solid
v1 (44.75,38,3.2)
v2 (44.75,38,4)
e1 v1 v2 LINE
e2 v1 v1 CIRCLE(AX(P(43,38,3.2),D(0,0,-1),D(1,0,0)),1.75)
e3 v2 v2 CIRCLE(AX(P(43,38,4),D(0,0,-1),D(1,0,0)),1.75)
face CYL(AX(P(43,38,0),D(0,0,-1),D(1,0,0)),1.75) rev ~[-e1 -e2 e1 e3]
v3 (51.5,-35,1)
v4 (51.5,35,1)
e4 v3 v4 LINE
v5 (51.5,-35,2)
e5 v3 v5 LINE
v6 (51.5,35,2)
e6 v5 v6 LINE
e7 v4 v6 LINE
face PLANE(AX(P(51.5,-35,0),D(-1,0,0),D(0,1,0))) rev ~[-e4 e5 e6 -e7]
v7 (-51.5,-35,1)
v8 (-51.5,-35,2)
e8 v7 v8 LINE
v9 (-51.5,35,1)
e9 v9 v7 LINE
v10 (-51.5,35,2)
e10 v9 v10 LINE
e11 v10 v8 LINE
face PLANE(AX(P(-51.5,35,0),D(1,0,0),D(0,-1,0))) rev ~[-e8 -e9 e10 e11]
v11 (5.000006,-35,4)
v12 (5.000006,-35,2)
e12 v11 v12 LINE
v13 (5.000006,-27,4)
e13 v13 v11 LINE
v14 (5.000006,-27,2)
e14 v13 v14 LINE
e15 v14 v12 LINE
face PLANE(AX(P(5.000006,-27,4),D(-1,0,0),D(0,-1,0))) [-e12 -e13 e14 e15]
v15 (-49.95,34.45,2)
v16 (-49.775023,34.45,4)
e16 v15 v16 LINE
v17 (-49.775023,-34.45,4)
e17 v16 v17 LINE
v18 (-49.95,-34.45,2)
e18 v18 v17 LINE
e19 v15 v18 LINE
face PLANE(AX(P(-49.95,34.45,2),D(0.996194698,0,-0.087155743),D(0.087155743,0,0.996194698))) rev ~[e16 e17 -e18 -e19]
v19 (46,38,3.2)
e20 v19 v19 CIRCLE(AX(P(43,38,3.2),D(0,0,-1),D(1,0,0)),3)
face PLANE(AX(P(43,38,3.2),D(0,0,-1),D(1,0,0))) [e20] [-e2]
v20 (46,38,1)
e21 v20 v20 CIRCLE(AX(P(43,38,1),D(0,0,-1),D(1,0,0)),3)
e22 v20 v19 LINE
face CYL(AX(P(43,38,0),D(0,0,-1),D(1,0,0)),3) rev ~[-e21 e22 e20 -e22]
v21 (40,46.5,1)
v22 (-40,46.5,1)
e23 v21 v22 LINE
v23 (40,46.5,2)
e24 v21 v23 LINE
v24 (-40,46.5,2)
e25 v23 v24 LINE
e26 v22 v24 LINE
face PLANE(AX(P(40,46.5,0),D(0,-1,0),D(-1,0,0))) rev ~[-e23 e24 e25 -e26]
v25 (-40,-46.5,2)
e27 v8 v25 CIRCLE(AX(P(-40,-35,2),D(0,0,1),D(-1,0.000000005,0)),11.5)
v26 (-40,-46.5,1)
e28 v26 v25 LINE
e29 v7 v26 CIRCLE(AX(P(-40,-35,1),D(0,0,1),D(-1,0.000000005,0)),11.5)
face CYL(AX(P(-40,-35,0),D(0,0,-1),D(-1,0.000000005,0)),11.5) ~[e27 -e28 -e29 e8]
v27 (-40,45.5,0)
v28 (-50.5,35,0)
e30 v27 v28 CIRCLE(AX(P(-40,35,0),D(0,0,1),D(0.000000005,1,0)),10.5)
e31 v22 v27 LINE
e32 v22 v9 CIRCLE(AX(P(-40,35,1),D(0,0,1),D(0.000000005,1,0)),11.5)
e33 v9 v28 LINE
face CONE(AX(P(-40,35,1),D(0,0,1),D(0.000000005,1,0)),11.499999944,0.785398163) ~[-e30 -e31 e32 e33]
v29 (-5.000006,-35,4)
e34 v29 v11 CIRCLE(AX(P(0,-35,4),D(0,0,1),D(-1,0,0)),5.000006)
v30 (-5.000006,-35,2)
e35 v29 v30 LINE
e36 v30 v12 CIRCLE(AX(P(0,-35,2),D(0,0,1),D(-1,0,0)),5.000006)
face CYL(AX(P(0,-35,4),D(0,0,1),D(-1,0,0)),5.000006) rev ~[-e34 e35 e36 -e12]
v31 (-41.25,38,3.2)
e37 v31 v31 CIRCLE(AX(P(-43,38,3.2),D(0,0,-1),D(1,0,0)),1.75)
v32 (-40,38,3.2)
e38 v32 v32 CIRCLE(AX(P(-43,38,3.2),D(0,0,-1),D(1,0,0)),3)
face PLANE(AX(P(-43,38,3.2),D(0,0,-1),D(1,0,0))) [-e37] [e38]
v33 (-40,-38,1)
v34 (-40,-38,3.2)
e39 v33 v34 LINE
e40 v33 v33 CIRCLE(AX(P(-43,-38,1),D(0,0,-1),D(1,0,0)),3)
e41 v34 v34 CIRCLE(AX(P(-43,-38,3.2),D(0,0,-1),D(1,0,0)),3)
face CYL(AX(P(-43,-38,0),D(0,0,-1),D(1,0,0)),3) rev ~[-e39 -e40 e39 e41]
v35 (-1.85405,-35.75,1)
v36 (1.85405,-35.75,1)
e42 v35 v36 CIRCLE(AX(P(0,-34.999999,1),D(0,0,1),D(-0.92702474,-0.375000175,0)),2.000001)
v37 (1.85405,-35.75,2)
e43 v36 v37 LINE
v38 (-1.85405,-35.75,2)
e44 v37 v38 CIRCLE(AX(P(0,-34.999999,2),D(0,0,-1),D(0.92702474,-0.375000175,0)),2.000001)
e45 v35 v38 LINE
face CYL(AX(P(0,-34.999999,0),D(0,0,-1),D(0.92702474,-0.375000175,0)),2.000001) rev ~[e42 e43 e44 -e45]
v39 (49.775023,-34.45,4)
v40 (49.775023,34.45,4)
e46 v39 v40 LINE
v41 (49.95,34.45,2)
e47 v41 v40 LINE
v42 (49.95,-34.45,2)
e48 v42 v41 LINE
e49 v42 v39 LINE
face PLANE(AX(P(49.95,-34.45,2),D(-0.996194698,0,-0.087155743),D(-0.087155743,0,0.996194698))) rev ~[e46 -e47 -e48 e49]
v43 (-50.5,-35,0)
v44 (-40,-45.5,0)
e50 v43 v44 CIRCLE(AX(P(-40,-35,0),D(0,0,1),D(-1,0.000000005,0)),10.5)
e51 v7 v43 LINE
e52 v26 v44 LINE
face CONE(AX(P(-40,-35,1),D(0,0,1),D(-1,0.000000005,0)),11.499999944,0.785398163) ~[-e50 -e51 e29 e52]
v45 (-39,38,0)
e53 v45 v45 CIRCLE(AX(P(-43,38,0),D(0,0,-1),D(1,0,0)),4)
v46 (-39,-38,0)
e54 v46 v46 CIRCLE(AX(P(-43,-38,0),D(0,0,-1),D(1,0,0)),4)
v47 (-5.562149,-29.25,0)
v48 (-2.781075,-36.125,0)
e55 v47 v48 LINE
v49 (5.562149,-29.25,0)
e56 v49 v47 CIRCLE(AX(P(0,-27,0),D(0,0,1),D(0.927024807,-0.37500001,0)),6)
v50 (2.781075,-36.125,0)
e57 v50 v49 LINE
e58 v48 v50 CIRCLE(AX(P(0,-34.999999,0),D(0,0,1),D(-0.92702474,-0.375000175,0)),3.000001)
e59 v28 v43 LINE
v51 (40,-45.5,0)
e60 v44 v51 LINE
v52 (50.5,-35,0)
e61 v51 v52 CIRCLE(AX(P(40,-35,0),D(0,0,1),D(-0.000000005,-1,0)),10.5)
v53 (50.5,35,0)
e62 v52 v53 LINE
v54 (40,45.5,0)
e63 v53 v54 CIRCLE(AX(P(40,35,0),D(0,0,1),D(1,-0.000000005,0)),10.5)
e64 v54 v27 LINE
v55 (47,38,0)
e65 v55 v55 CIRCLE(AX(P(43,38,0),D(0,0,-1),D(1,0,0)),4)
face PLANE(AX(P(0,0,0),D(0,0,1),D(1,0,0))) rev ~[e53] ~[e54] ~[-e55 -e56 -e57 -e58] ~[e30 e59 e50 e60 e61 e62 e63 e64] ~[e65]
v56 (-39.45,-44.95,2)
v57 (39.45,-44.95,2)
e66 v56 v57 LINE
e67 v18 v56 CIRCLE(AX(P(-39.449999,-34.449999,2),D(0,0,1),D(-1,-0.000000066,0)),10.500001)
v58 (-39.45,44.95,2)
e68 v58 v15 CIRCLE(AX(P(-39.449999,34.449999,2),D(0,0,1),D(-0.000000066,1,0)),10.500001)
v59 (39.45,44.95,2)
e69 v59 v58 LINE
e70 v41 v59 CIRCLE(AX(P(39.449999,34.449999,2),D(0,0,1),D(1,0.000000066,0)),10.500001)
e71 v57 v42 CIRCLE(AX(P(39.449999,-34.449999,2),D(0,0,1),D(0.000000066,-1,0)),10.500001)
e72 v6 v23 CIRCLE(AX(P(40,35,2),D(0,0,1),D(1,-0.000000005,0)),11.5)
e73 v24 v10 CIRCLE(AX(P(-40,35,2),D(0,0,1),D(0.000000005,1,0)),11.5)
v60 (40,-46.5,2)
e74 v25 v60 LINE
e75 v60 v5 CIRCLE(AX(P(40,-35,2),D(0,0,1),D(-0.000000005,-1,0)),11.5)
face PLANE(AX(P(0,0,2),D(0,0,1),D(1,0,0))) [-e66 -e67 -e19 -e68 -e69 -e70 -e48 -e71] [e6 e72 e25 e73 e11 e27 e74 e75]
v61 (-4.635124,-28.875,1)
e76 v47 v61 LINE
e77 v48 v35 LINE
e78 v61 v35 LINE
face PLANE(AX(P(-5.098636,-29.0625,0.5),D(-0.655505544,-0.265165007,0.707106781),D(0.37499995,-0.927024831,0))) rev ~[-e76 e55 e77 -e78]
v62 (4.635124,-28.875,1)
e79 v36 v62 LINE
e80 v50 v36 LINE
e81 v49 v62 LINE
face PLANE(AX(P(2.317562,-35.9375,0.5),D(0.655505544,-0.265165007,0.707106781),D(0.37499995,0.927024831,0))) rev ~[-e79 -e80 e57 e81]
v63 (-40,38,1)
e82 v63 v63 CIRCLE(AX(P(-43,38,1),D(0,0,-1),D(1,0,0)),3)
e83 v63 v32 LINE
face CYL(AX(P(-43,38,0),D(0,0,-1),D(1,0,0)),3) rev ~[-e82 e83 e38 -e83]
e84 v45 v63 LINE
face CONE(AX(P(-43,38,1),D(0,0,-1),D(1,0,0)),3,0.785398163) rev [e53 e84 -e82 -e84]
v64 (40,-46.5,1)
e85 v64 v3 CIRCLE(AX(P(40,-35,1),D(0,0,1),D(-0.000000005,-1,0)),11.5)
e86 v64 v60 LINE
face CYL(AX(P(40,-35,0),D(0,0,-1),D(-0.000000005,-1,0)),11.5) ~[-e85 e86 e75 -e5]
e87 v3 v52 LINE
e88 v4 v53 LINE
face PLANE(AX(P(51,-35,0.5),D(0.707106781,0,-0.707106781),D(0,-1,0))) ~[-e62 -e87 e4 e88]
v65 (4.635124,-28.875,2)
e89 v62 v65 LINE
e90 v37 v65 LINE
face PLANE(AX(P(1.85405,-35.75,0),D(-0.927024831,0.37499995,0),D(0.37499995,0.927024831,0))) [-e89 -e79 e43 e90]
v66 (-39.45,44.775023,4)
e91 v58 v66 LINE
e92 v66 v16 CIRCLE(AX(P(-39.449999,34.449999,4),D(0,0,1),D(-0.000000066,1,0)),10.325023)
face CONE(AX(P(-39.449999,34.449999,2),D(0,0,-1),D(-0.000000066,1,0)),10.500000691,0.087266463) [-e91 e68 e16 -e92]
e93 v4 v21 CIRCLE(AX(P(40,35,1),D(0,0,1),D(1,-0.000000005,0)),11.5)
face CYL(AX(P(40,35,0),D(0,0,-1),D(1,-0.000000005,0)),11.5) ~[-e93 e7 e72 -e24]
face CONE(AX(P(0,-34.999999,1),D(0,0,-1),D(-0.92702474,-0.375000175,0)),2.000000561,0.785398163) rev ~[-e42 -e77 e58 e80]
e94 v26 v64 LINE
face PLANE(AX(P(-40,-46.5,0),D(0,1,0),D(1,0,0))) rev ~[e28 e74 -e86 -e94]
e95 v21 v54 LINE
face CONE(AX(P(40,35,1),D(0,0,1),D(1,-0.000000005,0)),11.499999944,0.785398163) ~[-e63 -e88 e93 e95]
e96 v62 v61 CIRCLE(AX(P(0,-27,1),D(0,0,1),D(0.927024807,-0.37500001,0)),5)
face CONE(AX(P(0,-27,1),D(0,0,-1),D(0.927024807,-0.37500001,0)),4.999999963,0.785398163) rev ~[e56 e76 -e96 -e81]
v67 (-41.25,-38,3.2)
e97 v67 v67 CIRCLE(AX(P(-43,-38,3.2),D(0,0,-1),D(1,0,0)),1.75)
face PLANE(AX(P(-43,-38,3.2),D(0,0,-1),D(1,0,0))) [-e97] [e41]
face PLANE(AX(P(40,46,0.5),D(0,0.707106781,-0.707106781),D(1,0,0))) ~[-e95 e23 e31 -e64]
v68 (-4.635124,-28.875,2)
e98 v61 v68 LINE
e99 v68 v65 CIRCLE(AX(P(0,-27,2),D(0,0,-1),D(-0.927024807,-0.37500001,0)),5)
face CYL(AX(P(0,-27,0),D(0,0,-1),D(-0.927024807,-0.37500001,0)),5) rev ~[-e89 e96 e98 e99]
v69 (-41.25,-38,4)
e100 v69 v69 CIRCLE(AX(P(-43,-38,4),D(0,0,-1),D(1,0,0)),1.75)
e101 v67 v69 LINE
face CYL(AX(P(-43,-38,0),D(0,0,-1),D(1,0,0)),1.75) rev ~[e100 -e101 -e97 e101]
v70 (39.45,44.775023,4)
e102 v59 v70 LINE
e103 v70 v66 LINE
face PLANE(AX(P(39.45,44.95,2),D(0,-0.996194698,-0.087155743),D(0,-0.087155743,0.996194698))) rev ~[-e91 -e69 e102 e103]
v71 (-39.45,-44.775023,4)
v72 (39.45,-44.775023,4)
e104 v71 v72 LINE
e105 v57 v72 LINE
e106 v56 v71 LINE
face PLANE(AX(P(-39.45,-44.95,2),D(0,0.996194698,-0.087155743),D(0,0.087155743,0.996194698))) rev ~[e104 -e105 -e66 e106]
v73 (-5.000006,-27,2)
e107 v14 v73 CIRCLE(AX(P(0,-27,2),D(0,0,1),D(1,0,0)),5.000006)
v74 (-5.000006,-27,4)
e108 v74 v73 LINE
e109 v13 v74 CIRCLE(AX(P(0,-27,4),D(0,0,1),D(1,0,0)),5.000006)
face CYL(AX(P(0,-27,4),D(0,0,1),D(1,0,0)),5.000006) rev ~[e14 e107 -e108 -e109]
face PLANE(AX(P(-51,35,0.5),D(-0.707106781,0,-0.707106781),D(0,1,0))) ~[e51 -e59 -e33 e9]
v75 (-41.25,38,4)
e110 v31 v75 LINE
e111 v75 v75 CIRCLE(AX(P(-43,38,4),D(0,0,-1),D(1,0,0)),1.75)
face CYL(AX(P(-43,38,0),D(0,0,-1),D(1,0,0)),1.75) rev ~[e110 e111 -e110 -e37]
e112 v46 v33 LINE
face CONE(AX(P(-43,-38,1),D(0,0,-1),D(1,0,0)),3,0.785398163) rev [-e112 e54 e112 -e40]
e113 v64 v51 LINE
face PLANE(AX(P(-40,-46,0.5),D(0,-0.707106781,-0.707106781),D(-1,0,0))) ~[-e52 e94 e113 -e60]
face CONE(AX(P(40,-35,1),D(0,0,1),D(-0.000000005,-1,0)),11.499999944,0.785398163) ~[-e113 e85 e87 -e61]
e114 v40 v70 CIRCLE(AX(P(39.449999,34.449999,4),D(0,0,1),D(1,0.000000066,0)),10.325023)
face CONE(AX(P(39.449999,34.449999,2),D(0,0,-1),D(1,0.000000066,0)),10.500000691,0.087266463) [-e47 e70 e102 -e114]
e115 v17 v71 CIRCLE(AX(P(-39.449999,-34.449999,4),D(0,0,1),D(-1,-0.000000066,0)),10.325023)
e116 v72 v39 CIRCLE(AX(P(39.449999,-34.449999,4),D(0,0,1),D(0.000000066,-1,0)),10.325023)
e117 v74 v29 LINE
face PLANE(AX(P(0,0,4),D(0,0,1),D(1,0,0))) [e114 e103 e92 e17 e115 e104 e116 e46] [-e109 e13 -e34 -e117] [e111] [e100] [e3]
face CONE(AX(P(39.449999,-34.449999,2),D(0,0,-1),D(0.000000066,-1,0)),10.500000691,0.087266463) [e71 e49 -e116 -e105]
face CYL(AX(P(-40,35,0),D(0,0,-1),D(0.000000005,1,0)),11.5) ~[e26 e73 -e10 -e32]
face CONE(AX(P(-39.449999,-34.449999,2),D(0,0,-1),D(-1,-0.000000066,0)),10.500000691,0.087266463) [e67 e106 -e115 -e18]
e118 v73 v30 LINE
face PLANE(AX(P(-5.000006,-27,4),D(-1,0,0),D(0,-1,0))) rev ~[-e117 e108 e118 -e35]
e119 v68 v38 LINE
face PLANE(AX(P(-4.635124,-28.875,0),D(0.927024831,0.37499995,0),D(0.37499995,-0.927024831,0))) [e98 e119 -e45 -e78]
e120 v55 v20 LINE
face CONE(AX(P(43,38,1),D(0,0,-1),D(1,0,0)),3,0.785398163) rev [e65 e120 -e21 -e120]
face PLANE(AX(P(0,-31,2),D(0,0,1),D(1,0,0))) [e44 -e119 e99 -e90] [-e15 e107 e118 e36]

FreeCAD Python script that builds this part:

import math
import FreeCAD as App
import Part
import Sketcher

V = App.Vector
Q = App.Units.Quantity


def edges_at(feature, points):
    """Names of the edges that pass closest to the given points."""
    edges = feature.Shape.Edges
    near = lambda p: min(range(len(edges)), key=lambda i: edges[i].distToShape(Part.Vertex(*p))[0])
    return sorted({f"Edge{near(p) + 1}" for p in points})

doc = App.newDocument("Part")
body = doc.addObject("PartDesign::Body", "Body")

# Sketch on XY plane
sketch1 = body.newObject("Sketcher::SketchObject", "Sketch")
sketch1.AttachmentSupport = (doc.getObject("XY_Plane"), [""])
sketch1.MapMode = "FlatFace"
sketch1.addGeometry([
    Part.LineSegment(V(-40, -46, 0), V(40, -46, 0)),  # 0
    Part.ArcOfCircle(Part.Circle(V(40, -35, 0), V(0, 0, 1), 11), math.radians(-90), math.radians(0)),  # 1
    Part.LineSegment(V(52, -35, 0), V(52, 35, 0)),  # 2
    Part.ArcOfCircle(Part.Circle(V(40, 35, 0), V(0, 0, 1), 11), math.radians(0), math.radians(90)),  # 3
    Part.LineSegment(V(40, 46, 0), V(-40, 46, 0)),  # 4
    Part.ArcOfCircle(Part.Circle(V(-40, 35, 0), V(0, 0, 1), 11), math.radians(90), math.radians(180)),  # 5
    Part.LineSegment(V(-52, 35, 0), V(-52, -35, 0)),  # 6
    Part.ArcOfCircle(Part.Circle(V(-40, -35, 0), V(0, 0, 1), 11), math.radians(180), math.radians(270)),  # 7
], False)
sketch1.addConstraint([
    Sketcher.Constraint("Tangent", 0, 2, 1, 1),
    Sketcher.Constraint("Tangent", 1, 2, 2, 1),
    Sketcher.Constraint("Tangent", 2, 2, 3, 1),
    Sketcher.Constraint("Tangent", 3, 2, 4, 1),
    Sketcher.Constraint("Tangent", 4, 2, 5, 1),
    Sketcher.Constraint("Tangent", 5, 2, 6, 1),
    Sketcher.Constraint("Tangent", 6, 2, 7, 1),
    Sketcher.Constraint("Tangent", 7, 2, 0, 1),
    Sketcher.Constraint("Horizontal", 0),
    Sketcher.Constraint("Vertical", 2),
    Sketcher.Constraint("Horizontal", 4),
    Sketcher.Constraint("Vertical", 6),
    Sketcher.Constraint("Equal", 1, 3),
    Sketcher.Constraint("Equal", 3, 5),
    Sketcher.Constraint("Equal", 5, 7),
    Sketcher.Constraint("Symmetric", 1, 3, 5, 3, -1, 1),
    Sketcher.Constraint("Radius", 1, Q("11.5 mm")),
    Sketcher.Constraint("DistanceX", 0, 1, 0, 2, Q("80 mm")),
    Sketcher.Constraint("DistanceY", 2, 1, 2, 2, Q("70 mm")),
])
pad1 = body.newObject("PartDesign::Pad", "Pad")
pad1.Profile = sketch1
pad1.Length = 2

# Sketch on XY plane
sketch2 = body.newObject("Sketcher::SketchObject", "Sketch001")
sketch2.AttachmentSupport = (doc.getObject("XY_Plane"), [""])
sketch2.MapMode = "FlatFace"
sketch2.AttachmentOffset = App.Placement(V(0, 0, 2), App.Rotation())
sketch2.addGeometry([
    Part.LineSegment(V(50, -34, 0), V(50, 34, 0)),  # 0
    Part.ArcOfCircle(Part.Circle(V(39, 34, 0), V(0, 0, 1), 11), math.radians(0), math.radians(90)),  # 1
    Part.LineSegment(V(39, 45, 0), V(-39, 45, 0)),  # 2
    Part.ArcOfCircle(Part.Circle(V(-39, 34, 0), V(0, 0, 1), 11), math.radians(90), math.radians(180)),  # 3
    Part.LineSegment(V(-50, 34, 0), V(-50, -34, 0)),  # 4
    Part.ArcOfCircle(Part.Circle(V(-39, -34, 0), V(0, 0, 1), 11), math.radians(-180), math.radians(-90)),  # 5
    Part.LineSegment(V(-39, -45, 0), V(39, -45, 0)),  # 6
    Part.ArcOfCircle(Part.Circle(V(39, -34, 0), V(0, 0, 1), 11), math.radians(-90), math.radians(0)),  # 7
], False)
sketch2.addConstraint([
    Sketcher.Constraint("Tangent", 0, 2, 1, 1),
    Sketcher.Constraint("Tangent", 1, 2, 2, 1),
    Sketcher.Constraint("Tangent", 2, 2, 3, 1),
    Sketcher.Constraint("Tangent", 3, 2, 4, 1),
    Sketcher.Constraint("Tangent", 4, 2, 5, 1),
    Sketcher.Constraint("Tangent", 5, 2, 6, 1),
    Sketcher.Constraint("Tangent", 6, 2, 7, 1),
    Sketcher.Constraint("Tangent", 7, 2, 0, 1),
    Sketcher.Constraint("Vertical", 0),
    Sketcher.Constraint("Horizontal", 2),
    Sketcher.Constraint("Vertical", 4),
    Sketcher.Constraint("Horizontal", 6),
    Sketcher.Constraint("Equal", 1, 3),
    Sketcher.Constraint("Equal", 3, 5),
    Sketcher.Constraint("Equal", 5, 7),
    Sketcher.Constraint("Symmetric", 1, 3, 5, 3, -1, 1),
    Sketcher.Constraint("Radius", 1, Q("10.500001 mm")),
    Sketcher.Constraint("DistanceX", 2, 2, 2, 1, Q("78.9 mm")),
    Sketcher.Constraint("DistanceY", 0, 1, 0, 2, Q("68.9 mm")),
])
pad2 = body.newObject("PartDesign::Pad", "Pad001")
pad2.Profile = sketch2
pad2.Length = 2
pad2.TaperAngle = -5

# Sketch on XY plane
sketch3 = body.newObject("Sketcher::SketchObject", "Sketch002")
sketch3.AttachmentSupport = (doc.getObject("XY_Plane"), [""])
sketch3.MapMode = "FlatFace"
sketch3.addGeometry([
    Part.Circle(V(-43, -38, 0), V(0, 0, 1), 3),
    Part.Circle(V(-43, 38, 0), V(0, 0, 1), 3),
    Part.Circle(V(43, 38, 0), V(0, 0, 1), 3),
], False)
sketch3.addConstraint([
    Sketcher.Constraint("Equal", 0, 1),
    Sketcher.Constraint("Equal", 1, 2),
    Sketcher.Constraint("Symmetric", 0, 3, 2, 3, -1, 1),
    Sketcher.Constraint("Symmetric", 1, 3, 2, 3, -2),
    Sketcher.Constraint("Diameter", 0, Q("6 mm")),
    Sketcher.Constraint("DistanceX", 0, 3, -1, 1, Q("43 mm")),
    Sketcher.Constraint("DistanceY", 0, 3, -1, 1, Q("38 mm")),
])
pocket1 = body.newObject("PartDesign::Pocket", "Pocket")
pocket1.Profile = sketch3
pocket1.Length = 3.2
pocket1.Reversed = True

# Sketch on XY plane
sketch4 = body.newObject("Sketcher::SketchObject", "Sketch003")
sketch4.AttachmentSupport = (doc.getObject("XY_Plane"), [""])
sketch4.MapMode = "FlatFace"
sketch4.addGeometry([
    Part.Circle(V(-43, -38, 0), V(0, 0, 1), 1.8),
    Part.Circle(V(-43, 38, 0), V(0, 0, 1), 1.8),
    Part.Circle(V(43, 38, 0), V(0, 0, 1), 1.8),
], False)
sketch4.addConstraint([
    Sketcher.Constraint("Equal", 0, 1),
    Sketcher.Constraint("Equal", 1, 2),
    Sketcher.Constraint("Symmetric", 0, 3, 2, 3, -1, 1),
    Sketcher.Constraint("Symmetric", 1, 3, 2, 3, -2),
    Sketcher.Constraint("Diameter", 0, Q("3.5 mm")),
    Sketcher.Constraint("DistanceX", 0, 3, -1, 1, Q("43 mm")),
    Sketcher.Constraint("DistanceY", 0, 3, -1, 1, Q("38 mm")),
])
pocket2 = body.newObject("PartDesign::Pocket", "Pocket001")
pocket2.Profile = sketch4
pocket2.Type = "ThroughAll"
pocket2.Reversed = True

# Sketch on XY plane
sketch5 = body.newObject("Sketcher::SketchObject", "Sketch004")
sketch5.AttachmentSupport = (doc.getObject("XY_Plane"), [""])
sketch5.MapMode = "FlatFace"
sketch5.addGeometry([
    Part.ArcOfCircle(Part.Circle(V(0, -27, 0), V(0, 0, 1), 5), math.radians(-22), math.radians(202)),
    Part.LineSegment(V(4.6, -28.9, 0), V(1.9, -35.8, 0)),
    Part.ArcOfCircle(Part.Circle(V(0, -35, 0), V(0, 0, 1), 2), math.radians(-158), math.radians(-22)),
    Part.LineSegment(V(-1.9, -35.8, 0), V(-4.6, -28.9, 0)),
], False)
sketch5.addConstraint([
    Sketcher.Constraint("Tangent", 0, 1, 1, 1),
    Sketcher.Constraint("Tangent", 1, 2, 2, 2),
    Sketcher.Constraint("Tangent", 2, 1, 3, 1),
    Sketcher.Constraint("Tangent", 3, 2, 0, 2),
    Sketcher.Constraint("Symmetric", 1, 2, 2, 1, -2),
    Sketcher.Constraint("Radius", 0, Q("5 mm")),
    Sketcher.Constraint("Radius", 2, Q("2.000001 mm")),
    Sketcher.Constraint("DistanceY", 0, 3, -1, 1, Q("27 mm")),
    Sketcher.Constraint("DistanceY", 2, 3, -1, 1, Q("34.999999 mm")),
])
pocket3 = body.newObject("PartDesign::Pocket", "Pocket002")
pocket3.Profile = sketch5
pocket3.Type = "ThroughAll"
pocket3.Reversed = True

# Sketch on XY plane
sketch6 = body.newObject("Sketcher::SketchObject", "Sketch005")
sketch6.AttachmentSupport = (doc.getObject("XY_Plane"), [""])
sketch6.MapMode = "FlatFace"
sketch6.AttachmentOffset = App.Placement(V(0, 0, 4), App.Rotation())
sketch6.addGeometry([
    Part.ArcOfCircle(Part.Circle(V(0, -27, 0), V(0, 0, 1), 5), math.radians(0), math.radians(180)),
    Part.LineSegment(V(-5, -27, 0), V(-5, -35, 0)),
    Part.ArcOfCircle(Part.Circle(V(0, -35, 0), V(0, 0, 1), 5), math.radians(180), math.radians(360)),
    Part.LineSegment(V(5, -35, 0), V(5, -27, 0)),
], False)
sketch6.addConstraint([
    Sketcher.Constraint("Tangent", 0, 2, 1, 1),
    Sketcher.Constraint("Tangent", 1, 2, 2, 1),
    Sketcher.Constraint("Tangent", 2, 2, 3, 1),
    Sketcher.Constraint("Tangent", 3, 2, 0, 1),
    Sketcher.Constraint("Vertical", 1),
    Sketcher.Constraint("Vertical", 3),
    Sketcher.Constraint("PointOnObject", 0, 3, -2),
    Sketcher.Constraint("DistanceY", 1, 2, 1, 1, Q("8 mm")),
    Sketcher.Constraint("DistanceY", 0, 3, -1, 1, Q("27 mm")),
    Sketcher.Constraint("Radius", 0, Q("5.000006 mm")),
])
pocket4 = body.newObject("PartDesign::Pocket", "Pocket003")
pocket4.Profile = sketch6
pocket4.Length = 2
doc.recompute()

chamfer = body.newObject("PartDesign::Chamfer", "Chamfer")
chamfer.Base = (pocket4, edges_at(pocket4, [
    (0, -46.5, 0),
    (-48.132, -43.132, 0),
    (48.132, -43.132, 0),
    (-51.5, 0, 0),
    (51.5, 0, 0),
    (-48.132, 43.132, 0),
    (48.132, 43.132, 0),
    (0, 46.5, 0),
    (-46, -38, 0),
    (3.245, -32.312, 0),
    (0, -22, 0),
    (-3.245, -32.312, 0),
    (0, -37, 0),
    (-46, 38, 0),
    (40, 38, 0),
]))
chamfer.Size = 1

doc.recompute()
